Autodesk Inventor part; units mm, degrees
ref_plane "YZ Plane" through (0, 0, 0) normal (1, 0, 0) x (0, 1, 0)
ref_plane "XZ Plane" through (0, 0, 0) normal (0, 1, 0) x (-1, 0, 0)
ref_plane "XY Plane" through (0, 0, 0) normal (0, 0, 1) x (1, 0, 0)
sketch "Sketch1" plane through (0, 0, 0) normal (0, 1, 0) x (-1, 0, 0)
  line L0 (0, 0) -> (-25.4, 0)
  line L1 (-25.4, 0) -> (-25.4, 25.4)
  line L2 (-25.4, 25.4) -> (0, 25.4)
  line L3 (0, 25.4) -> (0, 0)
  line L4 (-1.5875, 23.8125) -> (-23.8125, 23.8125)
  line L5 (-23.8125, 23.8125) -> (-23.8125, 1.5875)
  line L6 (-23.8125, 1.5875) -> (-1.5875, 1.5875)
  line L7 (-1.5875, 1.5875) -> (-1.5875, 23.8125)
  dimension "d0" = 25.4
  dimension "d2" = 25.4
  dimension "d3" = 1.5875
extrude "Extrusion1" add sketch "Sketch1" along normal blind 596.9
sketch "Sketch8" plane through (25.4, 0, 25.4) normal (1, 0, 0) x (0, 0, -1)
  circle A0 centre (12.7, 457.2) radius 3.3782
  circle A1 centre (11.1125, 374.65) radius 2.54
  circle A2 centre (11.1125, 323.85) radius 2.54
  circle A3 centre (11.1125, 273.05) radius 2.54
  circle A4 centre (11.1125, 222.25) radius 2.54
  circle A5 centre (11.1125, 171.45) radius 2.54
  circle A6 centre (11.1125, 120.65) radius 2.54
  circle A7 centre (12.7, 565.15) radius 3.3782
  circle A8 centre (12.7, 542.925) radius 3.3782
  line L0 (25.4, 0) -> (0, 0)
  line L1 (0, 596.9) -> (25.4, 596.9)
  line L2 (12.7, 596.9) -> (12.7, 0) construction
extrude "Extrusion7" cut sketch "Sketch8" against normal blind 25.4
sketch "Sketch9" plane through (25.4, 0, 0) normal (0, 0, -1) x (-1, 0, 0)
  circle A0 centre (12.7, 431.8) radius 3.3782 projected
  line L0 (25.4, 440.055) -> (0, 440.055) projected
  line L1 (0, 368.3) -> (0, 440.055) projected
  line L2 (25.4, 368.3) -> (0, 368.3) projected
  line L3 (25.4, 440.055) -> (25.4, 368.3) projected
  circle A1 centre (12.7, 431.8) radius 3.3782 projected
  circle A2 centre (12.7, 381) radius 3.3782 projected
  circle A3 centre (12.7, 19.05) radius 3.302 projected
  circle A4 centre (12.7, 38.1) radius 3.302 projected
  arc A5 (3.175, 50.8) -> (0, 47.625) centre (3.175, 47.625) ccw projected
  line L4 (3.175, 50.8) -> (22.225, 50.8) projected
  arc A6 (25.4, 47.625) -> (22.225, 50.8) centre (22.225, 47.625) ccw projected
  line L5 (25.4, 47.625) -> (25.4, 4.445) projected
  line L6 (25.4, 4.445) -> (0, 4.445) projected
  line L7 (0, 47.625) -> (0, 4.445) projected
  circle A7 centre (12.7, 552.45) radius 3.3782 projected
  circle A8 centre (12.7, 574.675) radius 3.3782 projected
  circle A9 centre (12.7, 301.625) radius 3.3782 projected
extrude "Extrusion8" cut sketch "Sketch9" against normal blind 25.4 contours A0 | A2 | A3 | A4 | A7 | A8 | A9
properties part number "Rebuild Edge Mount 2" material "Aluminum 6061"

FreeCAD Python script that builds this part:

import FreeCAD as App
import Part
import Sketcher

V = App.Vector
Q = App.Units.Quantity

doc = App.newDocument("Part")
body = doc.addObject("PartDesign::Body", "Body")

sketch1 = body.newObject("Sketcher::SketchObject", "Sketch")
sketch1.AttachmentSupport = (doc.getObject("XZ_Plane"), [""])
sketch1.MapMode = "FlatFace"
sketch1.addGeometry(Part.LineSegment(V(25, 0, 0), V(0, 0, 0)), False)
sketch1.addGeometry(Part.LineSegment(V(0, 0, 0), V(0, 25, 0)), False)
sketch1.addGeometry(Part.LineSegment(V(0, 25, 0), V(25, 25, 0)), False)
sketch1.addGeometry(Part.LineSegment(V(25, 25, 0), V(25, 0, 0)), False)
sketch1.addGeometry(Part.LineSegment(V(24, 24, 0), V(2, 24, 0)), False)
sketch1.addGeometry(Part.LineSegment(V(2, 24, 0), V(2, 2, 0)), False)
sketch1.addGeometry(Part.LineSegment(V(2, 2, 0), V(24, 2, 0)), False)
sketch1.addGeometry(Part.LineSegment(V(24, 2, 0), V(24, 24, 0)), False)
sketch1.addConstraint(Sketcher.Constraint("Coincident", 0, 2, 1, 1))
sketch1.addConstraint(Sketcher.Constraint("Coincident", 1, 2, 2, 1))
sketch1.addConstraint(Sketcher.Constraint("Coincident", 2, 2, 3, 1))
sketch1.addConstraint(Sketcher.Constraint("Coincident", 3, 2, 0, 1))
sketch1.addConstraint(Sketcher.Constraint("Coincident", 4, 2, 5, 1))
sketch1.addConstraint(Sketcher.Constraint("Coincident", 5, 2, 6, 1))
sketch1.addConstraint(Sketcher.Constraint("Coincident", 6, 2, 7, 1))
sketch1.addConstraint(Sketcher.Constraint("Coincident", 7, 2, 4, 1))
sketch1.addConstraint(Sketcher.Constraint("Horizontal", 0))
sketch1.addConstraint(Sketcher.Constraint("Vertical", 1))
sketch1.addConstraint(Sketcher.Constraint("Horizontal", 2))
sketch1.addConstraint(Sketcher.Constraint("Vertical", 3))
sketch1.addConstraint(Sketcher.Constraint("Horizontal", 4))
sketch1.addConstraint(Sketcher.Constraint("Vertical", 5))
sketch1.addConstraint(Sketcher.Constraint("Horizontal", 6))
sketch1.addConstraint(Sketcher.Constraint("Vertical", 7))
sketch1.addConstraint(Sketcher.Constraint("Coincident", 0, 2, -1, 1))
sketch1.addConstraint(Sketcher.Constraint("Equal", 2, 1))
sketch1.addConstraint(Sketcher.Constraint("Equal", 6, 5))
sketch1.addConstraint(Sketcher.Constraint("DistanceX", 0, 2, 0, 1, Q("1 in")))
sketch1.addConstraint(Sketcher.Constraint("DistanceX", -1, 1, 4, 2, Q("0.0625 in")))
sketch1.addConstraint(Sketcher.Constraint("DistanceY", -1, 1, 5, 2, Q("0.0625 in")))
sketch1.addConstraint(Sketcher.Constraint("DistanceY", 4, 2, 1, 2, Q("0.0625 in")))
pad1 = body.newObject("PartDesign::Pad", "Pad")
pad1.Profile = sketch1
pad1.Length = Q("23.5 in")
pad1.Reversed = True

sketch2 = body.newObject("Sketcher::SketchObject", "Sketch001")
sketch2.AttachmentSupport = (doc.getObject("YZ_Plane"), [""])
sketch2.MapMode = "FlatFace"
sketch2.AttachmentOffset = App.Placement(V(0, 0, 1 * 25.4), App.Rotation())
sketch2.addGeometry(Part.Circle(V(457.2, 12.7, 0), V(0, 0, 1), 3.4), False)
sketch2.addGeometry(Part.Circle(V(374.6, 14.3, 0), V(0, 0, 1), 2.5), False)
sketch2.addGeometry(Part.Circle(V(323.9, 14.3, 0), V(0, 0, 1), 2.5), False)
sketch2.addGeometry(Part.Circle(V(273.1, 14.3, 0), V(0, 0, 1), 2.5), False)
sketch2.addGeometry(Part.Circle(V(222.2, 14.3, 0), V(0, 0, 1), 2.5), False)
sketch2.addGeometry(Part.Circle(V(171.4, 14.3, 0), V(0, 0, 1), 2.5), False)
sketch2.addGeometry(Part.Circle(V(120.7, 14.3, 0), V(0, 0, 1), 2.5), False)
sketch2.addGeometry(Part.Circle(V(565.1, 12.7, 0), V(0, 0, 1), 3.4), False)
sketch2.addGeometry(Part.Circle(V(542.9, 12.7, 0), V(0, 0, 1), 3.4), False)
sketch2.addConstraint(Sketcher.Constraint("Equal", 1, 2))
sketch2.addConstraint(Sketcher.Constraint("Equal", 2, 3))
sketch2.addConstraint(Sketcher.Constraint("Equal", 3, 4))
sketch2.addConstraint(Sketcher.Constraint("Equal", 4, 5))
sketch2.addConstraint(Sketcher.Constraint("Equal", 5, 6))
sketch2.addConstraint(Sketcher.Constraint("Equal", 0, 7))
sketch2.addConstraint(Sketcher.Constraint("Equal", 7, 8))
sketch2.addConstraint(Sketcher.Constraint("Horizontal", 1, 3, 2, 3))
sketch2.addConstraint(Sketcher.Constraint("Horizontal", 2, 3, 3, 3))
sketch2.addConstraint(Sketcher.Constraint("Horizontal", 3, 3, 4, 3))
sketch2.addConstraint(Sketcher.Constraint("Horizontal", 4, 3, 5, 3))
sketch2.addConstraint(Sketcher.Constraint("Horizontal", 5, 3, 6, 3))
sketch2.addConstraint(Sketcher.Constraint("Horizontal", 0, 3, 7, 3))
sketch2.addConstraint(Sketcher.Constraint("Horizontal", 7, 3, 8, 3))
sketch2.addConstraint(Sketcher.Constraint("Diameter", 1, Q("0.2 in")))
sketch2.addConstraint(Sketcher.Constraint("Diameter", 0, Q("0.266 in")))
sketch2.addConstraint(Sketcher.Constraint("DistanceX", -1, 1, 0, 3, Q("18 in")))
sketch2.addConstraint(Sketcher.Constraint("DistanceX", 2, 3, 1, 3, Q("2 in")))
sketch2.addConstraint(Sketcher.Constraint("DistanceX", 3, 3, 2, 3, Q("2 in")))
sketch2.addConstraint(Sketcher.Constraint("DistanceX", 4, 3, 3, 3, Q("2 in")))
sketch2.addConstraint(Sketcher.Constraint("DistanceX", 5, 3, 4, 3, Q("2 in")))
sketch2.addConstraint(Sketcher.Constraint("DistanceX", 6, 3, 5, 3, Q("2 in")))
sketch2.addConstraint(Sketcher.Constraint("DistanceY", -1, 1, 0, 3, Q("0.5 in")))
sketch2.addConstraint(Sketcher.Constraint("DistanceX", 1, 3, 7, 3, Q("7.5 in")))
sketch2.addConstraint(Sketcher.Constraint("DistanceX", -1, 1, 1, 3, Q("14.75 in")))
sketch2.addConstraint(Sketcher.Constraint("DistanceY", -1, 1, 1, 3, Q("0.5625 in")))
sketch2.addConstraint(Sketcher.Constraint("DistanceX", -1, 1, 8, 3, Q("21.375 in")))
pocket1 = body.newObject("PartDesign::Pocket", "Pocket")
pocket1.Profile = sketch2
pocket1.Length = Q("1 in")

sketch3 = body.newObject("Sketcher::SketchObject", "Sketch002")
sketch3.AttachmentSupport = (doc.getObject("XY_Plane"), [""])
sketch3.MapMode = "FlatFace"
sketch3.addGeometry(Part.Circle(V(12.7, 431.8, 0), V(0, 0, 1), 3.4), False)
sketch3.addGeometry(Part.Circle(V(12.7, 381, 0), V(0, 0, 1), 3.4), False)
sketch3.addGeometry(Part.Circle(V(12.7, 19.1, 0), V(0, 0, 1), 3.3), False)
sketch3.addGeometry(Part.Circle(V(12.7, 38.1, 0), V(0, 0, 1), 3.3), False)
sketch3.addGeometry(Part.Circle(V(12.7, 552.5, 0), V(0, 0, 1), 3.4), False)
sketch3.addGeometry(Part.Circle(V(12.7, 574.7, 0), V(0, 0, 1), 3.4), False)
sketch3.addGeometry(Part.Circle(V(12.7, 301.6, 0), V(0, 0, 1), 3.4), False)
sketch3.addConstraint(Sketcher.Constraint("Equal", 0, 1))
sketch3.addConstraint(Sketcher.Constraint("Equal", 2, 3))
sketch3.addConstraint(Sketcher.Constraint("Equal", 1, 4))
sketch3.addConstraint(Sketcher.Constraint("Equal", 4, 5))
sketch3.addConstraint(Sketcher.Constraint("Equal", 5, 6))
sketch3.addConstraint(Sketcher.Constraint("Vertical", 0, 3, 1, 3))
sketch3.addConstraint(Sketcher.Constraint("Vertical", 1, 3, 2, 3))
sketch3.addConstraint(Sketcher.Constraint("Vertical", 2, 3, 3, 3))
sketch3.addConstraint(Sketcher.Constraint("Vertical", 3, 3, 4, 3))
sketch3.addConstraint(Sketcher.Constraint("Vertical", 4, 3, 5, 3))
sketch3.addConstraint(Sketcher.Constraint("Vertical", 5, 3, 6, 3))
sketch3.addConstraint(Sketcher.Constraint("Diameter", 2, Q("0.26 in")))
sketch3.addConstraint(Sketcher.Constraint("Diameter", 0, Q("0.266 in")))
sketch3.addConstraint(Sketcher.Constraint("DistanceY", -1, 1, 0, 3, Q("17 in")))
sketch3.addConstraint(Sketcher.Constraint("DistanceY", -1, 1, 1, 3, Q("15 in")))
sketch3.addConstraint(Sketcher.Constraint("DistanceY", 2, 3, 4, 3, Q("21 in")))
sketch3.addConstraint(Sketcher.Constraint("DistanceX", -1, 1, 0, 3, Q("0.5 in")))
sketch3.addConstraint(Sketcher.Constraint("DistanceY", -1, 1, 3, 3, Q("1.5 in")))
sketch3.addConstraint(Sketcher.Constraint("DistanceY", -1, 1, 2, 3, Q("0.75 in")))
sketch3.addConstraint(Sketcher.Constraint("DistanceY", 6, 3, 5, 3, Q("10.75 in")))
sketch3.addConstraint(Sketcher.Constraint("DistanceY", -1, 1, 5, 3, Q("22.625 in")))
pocket2 = body.newObject("PartDesign::Pocket", "Pocket001")
pocket2.Profile = sketch3
pocket2.Length = Q("1 in")
pocket2.Reversed = True

doc.recompute()
